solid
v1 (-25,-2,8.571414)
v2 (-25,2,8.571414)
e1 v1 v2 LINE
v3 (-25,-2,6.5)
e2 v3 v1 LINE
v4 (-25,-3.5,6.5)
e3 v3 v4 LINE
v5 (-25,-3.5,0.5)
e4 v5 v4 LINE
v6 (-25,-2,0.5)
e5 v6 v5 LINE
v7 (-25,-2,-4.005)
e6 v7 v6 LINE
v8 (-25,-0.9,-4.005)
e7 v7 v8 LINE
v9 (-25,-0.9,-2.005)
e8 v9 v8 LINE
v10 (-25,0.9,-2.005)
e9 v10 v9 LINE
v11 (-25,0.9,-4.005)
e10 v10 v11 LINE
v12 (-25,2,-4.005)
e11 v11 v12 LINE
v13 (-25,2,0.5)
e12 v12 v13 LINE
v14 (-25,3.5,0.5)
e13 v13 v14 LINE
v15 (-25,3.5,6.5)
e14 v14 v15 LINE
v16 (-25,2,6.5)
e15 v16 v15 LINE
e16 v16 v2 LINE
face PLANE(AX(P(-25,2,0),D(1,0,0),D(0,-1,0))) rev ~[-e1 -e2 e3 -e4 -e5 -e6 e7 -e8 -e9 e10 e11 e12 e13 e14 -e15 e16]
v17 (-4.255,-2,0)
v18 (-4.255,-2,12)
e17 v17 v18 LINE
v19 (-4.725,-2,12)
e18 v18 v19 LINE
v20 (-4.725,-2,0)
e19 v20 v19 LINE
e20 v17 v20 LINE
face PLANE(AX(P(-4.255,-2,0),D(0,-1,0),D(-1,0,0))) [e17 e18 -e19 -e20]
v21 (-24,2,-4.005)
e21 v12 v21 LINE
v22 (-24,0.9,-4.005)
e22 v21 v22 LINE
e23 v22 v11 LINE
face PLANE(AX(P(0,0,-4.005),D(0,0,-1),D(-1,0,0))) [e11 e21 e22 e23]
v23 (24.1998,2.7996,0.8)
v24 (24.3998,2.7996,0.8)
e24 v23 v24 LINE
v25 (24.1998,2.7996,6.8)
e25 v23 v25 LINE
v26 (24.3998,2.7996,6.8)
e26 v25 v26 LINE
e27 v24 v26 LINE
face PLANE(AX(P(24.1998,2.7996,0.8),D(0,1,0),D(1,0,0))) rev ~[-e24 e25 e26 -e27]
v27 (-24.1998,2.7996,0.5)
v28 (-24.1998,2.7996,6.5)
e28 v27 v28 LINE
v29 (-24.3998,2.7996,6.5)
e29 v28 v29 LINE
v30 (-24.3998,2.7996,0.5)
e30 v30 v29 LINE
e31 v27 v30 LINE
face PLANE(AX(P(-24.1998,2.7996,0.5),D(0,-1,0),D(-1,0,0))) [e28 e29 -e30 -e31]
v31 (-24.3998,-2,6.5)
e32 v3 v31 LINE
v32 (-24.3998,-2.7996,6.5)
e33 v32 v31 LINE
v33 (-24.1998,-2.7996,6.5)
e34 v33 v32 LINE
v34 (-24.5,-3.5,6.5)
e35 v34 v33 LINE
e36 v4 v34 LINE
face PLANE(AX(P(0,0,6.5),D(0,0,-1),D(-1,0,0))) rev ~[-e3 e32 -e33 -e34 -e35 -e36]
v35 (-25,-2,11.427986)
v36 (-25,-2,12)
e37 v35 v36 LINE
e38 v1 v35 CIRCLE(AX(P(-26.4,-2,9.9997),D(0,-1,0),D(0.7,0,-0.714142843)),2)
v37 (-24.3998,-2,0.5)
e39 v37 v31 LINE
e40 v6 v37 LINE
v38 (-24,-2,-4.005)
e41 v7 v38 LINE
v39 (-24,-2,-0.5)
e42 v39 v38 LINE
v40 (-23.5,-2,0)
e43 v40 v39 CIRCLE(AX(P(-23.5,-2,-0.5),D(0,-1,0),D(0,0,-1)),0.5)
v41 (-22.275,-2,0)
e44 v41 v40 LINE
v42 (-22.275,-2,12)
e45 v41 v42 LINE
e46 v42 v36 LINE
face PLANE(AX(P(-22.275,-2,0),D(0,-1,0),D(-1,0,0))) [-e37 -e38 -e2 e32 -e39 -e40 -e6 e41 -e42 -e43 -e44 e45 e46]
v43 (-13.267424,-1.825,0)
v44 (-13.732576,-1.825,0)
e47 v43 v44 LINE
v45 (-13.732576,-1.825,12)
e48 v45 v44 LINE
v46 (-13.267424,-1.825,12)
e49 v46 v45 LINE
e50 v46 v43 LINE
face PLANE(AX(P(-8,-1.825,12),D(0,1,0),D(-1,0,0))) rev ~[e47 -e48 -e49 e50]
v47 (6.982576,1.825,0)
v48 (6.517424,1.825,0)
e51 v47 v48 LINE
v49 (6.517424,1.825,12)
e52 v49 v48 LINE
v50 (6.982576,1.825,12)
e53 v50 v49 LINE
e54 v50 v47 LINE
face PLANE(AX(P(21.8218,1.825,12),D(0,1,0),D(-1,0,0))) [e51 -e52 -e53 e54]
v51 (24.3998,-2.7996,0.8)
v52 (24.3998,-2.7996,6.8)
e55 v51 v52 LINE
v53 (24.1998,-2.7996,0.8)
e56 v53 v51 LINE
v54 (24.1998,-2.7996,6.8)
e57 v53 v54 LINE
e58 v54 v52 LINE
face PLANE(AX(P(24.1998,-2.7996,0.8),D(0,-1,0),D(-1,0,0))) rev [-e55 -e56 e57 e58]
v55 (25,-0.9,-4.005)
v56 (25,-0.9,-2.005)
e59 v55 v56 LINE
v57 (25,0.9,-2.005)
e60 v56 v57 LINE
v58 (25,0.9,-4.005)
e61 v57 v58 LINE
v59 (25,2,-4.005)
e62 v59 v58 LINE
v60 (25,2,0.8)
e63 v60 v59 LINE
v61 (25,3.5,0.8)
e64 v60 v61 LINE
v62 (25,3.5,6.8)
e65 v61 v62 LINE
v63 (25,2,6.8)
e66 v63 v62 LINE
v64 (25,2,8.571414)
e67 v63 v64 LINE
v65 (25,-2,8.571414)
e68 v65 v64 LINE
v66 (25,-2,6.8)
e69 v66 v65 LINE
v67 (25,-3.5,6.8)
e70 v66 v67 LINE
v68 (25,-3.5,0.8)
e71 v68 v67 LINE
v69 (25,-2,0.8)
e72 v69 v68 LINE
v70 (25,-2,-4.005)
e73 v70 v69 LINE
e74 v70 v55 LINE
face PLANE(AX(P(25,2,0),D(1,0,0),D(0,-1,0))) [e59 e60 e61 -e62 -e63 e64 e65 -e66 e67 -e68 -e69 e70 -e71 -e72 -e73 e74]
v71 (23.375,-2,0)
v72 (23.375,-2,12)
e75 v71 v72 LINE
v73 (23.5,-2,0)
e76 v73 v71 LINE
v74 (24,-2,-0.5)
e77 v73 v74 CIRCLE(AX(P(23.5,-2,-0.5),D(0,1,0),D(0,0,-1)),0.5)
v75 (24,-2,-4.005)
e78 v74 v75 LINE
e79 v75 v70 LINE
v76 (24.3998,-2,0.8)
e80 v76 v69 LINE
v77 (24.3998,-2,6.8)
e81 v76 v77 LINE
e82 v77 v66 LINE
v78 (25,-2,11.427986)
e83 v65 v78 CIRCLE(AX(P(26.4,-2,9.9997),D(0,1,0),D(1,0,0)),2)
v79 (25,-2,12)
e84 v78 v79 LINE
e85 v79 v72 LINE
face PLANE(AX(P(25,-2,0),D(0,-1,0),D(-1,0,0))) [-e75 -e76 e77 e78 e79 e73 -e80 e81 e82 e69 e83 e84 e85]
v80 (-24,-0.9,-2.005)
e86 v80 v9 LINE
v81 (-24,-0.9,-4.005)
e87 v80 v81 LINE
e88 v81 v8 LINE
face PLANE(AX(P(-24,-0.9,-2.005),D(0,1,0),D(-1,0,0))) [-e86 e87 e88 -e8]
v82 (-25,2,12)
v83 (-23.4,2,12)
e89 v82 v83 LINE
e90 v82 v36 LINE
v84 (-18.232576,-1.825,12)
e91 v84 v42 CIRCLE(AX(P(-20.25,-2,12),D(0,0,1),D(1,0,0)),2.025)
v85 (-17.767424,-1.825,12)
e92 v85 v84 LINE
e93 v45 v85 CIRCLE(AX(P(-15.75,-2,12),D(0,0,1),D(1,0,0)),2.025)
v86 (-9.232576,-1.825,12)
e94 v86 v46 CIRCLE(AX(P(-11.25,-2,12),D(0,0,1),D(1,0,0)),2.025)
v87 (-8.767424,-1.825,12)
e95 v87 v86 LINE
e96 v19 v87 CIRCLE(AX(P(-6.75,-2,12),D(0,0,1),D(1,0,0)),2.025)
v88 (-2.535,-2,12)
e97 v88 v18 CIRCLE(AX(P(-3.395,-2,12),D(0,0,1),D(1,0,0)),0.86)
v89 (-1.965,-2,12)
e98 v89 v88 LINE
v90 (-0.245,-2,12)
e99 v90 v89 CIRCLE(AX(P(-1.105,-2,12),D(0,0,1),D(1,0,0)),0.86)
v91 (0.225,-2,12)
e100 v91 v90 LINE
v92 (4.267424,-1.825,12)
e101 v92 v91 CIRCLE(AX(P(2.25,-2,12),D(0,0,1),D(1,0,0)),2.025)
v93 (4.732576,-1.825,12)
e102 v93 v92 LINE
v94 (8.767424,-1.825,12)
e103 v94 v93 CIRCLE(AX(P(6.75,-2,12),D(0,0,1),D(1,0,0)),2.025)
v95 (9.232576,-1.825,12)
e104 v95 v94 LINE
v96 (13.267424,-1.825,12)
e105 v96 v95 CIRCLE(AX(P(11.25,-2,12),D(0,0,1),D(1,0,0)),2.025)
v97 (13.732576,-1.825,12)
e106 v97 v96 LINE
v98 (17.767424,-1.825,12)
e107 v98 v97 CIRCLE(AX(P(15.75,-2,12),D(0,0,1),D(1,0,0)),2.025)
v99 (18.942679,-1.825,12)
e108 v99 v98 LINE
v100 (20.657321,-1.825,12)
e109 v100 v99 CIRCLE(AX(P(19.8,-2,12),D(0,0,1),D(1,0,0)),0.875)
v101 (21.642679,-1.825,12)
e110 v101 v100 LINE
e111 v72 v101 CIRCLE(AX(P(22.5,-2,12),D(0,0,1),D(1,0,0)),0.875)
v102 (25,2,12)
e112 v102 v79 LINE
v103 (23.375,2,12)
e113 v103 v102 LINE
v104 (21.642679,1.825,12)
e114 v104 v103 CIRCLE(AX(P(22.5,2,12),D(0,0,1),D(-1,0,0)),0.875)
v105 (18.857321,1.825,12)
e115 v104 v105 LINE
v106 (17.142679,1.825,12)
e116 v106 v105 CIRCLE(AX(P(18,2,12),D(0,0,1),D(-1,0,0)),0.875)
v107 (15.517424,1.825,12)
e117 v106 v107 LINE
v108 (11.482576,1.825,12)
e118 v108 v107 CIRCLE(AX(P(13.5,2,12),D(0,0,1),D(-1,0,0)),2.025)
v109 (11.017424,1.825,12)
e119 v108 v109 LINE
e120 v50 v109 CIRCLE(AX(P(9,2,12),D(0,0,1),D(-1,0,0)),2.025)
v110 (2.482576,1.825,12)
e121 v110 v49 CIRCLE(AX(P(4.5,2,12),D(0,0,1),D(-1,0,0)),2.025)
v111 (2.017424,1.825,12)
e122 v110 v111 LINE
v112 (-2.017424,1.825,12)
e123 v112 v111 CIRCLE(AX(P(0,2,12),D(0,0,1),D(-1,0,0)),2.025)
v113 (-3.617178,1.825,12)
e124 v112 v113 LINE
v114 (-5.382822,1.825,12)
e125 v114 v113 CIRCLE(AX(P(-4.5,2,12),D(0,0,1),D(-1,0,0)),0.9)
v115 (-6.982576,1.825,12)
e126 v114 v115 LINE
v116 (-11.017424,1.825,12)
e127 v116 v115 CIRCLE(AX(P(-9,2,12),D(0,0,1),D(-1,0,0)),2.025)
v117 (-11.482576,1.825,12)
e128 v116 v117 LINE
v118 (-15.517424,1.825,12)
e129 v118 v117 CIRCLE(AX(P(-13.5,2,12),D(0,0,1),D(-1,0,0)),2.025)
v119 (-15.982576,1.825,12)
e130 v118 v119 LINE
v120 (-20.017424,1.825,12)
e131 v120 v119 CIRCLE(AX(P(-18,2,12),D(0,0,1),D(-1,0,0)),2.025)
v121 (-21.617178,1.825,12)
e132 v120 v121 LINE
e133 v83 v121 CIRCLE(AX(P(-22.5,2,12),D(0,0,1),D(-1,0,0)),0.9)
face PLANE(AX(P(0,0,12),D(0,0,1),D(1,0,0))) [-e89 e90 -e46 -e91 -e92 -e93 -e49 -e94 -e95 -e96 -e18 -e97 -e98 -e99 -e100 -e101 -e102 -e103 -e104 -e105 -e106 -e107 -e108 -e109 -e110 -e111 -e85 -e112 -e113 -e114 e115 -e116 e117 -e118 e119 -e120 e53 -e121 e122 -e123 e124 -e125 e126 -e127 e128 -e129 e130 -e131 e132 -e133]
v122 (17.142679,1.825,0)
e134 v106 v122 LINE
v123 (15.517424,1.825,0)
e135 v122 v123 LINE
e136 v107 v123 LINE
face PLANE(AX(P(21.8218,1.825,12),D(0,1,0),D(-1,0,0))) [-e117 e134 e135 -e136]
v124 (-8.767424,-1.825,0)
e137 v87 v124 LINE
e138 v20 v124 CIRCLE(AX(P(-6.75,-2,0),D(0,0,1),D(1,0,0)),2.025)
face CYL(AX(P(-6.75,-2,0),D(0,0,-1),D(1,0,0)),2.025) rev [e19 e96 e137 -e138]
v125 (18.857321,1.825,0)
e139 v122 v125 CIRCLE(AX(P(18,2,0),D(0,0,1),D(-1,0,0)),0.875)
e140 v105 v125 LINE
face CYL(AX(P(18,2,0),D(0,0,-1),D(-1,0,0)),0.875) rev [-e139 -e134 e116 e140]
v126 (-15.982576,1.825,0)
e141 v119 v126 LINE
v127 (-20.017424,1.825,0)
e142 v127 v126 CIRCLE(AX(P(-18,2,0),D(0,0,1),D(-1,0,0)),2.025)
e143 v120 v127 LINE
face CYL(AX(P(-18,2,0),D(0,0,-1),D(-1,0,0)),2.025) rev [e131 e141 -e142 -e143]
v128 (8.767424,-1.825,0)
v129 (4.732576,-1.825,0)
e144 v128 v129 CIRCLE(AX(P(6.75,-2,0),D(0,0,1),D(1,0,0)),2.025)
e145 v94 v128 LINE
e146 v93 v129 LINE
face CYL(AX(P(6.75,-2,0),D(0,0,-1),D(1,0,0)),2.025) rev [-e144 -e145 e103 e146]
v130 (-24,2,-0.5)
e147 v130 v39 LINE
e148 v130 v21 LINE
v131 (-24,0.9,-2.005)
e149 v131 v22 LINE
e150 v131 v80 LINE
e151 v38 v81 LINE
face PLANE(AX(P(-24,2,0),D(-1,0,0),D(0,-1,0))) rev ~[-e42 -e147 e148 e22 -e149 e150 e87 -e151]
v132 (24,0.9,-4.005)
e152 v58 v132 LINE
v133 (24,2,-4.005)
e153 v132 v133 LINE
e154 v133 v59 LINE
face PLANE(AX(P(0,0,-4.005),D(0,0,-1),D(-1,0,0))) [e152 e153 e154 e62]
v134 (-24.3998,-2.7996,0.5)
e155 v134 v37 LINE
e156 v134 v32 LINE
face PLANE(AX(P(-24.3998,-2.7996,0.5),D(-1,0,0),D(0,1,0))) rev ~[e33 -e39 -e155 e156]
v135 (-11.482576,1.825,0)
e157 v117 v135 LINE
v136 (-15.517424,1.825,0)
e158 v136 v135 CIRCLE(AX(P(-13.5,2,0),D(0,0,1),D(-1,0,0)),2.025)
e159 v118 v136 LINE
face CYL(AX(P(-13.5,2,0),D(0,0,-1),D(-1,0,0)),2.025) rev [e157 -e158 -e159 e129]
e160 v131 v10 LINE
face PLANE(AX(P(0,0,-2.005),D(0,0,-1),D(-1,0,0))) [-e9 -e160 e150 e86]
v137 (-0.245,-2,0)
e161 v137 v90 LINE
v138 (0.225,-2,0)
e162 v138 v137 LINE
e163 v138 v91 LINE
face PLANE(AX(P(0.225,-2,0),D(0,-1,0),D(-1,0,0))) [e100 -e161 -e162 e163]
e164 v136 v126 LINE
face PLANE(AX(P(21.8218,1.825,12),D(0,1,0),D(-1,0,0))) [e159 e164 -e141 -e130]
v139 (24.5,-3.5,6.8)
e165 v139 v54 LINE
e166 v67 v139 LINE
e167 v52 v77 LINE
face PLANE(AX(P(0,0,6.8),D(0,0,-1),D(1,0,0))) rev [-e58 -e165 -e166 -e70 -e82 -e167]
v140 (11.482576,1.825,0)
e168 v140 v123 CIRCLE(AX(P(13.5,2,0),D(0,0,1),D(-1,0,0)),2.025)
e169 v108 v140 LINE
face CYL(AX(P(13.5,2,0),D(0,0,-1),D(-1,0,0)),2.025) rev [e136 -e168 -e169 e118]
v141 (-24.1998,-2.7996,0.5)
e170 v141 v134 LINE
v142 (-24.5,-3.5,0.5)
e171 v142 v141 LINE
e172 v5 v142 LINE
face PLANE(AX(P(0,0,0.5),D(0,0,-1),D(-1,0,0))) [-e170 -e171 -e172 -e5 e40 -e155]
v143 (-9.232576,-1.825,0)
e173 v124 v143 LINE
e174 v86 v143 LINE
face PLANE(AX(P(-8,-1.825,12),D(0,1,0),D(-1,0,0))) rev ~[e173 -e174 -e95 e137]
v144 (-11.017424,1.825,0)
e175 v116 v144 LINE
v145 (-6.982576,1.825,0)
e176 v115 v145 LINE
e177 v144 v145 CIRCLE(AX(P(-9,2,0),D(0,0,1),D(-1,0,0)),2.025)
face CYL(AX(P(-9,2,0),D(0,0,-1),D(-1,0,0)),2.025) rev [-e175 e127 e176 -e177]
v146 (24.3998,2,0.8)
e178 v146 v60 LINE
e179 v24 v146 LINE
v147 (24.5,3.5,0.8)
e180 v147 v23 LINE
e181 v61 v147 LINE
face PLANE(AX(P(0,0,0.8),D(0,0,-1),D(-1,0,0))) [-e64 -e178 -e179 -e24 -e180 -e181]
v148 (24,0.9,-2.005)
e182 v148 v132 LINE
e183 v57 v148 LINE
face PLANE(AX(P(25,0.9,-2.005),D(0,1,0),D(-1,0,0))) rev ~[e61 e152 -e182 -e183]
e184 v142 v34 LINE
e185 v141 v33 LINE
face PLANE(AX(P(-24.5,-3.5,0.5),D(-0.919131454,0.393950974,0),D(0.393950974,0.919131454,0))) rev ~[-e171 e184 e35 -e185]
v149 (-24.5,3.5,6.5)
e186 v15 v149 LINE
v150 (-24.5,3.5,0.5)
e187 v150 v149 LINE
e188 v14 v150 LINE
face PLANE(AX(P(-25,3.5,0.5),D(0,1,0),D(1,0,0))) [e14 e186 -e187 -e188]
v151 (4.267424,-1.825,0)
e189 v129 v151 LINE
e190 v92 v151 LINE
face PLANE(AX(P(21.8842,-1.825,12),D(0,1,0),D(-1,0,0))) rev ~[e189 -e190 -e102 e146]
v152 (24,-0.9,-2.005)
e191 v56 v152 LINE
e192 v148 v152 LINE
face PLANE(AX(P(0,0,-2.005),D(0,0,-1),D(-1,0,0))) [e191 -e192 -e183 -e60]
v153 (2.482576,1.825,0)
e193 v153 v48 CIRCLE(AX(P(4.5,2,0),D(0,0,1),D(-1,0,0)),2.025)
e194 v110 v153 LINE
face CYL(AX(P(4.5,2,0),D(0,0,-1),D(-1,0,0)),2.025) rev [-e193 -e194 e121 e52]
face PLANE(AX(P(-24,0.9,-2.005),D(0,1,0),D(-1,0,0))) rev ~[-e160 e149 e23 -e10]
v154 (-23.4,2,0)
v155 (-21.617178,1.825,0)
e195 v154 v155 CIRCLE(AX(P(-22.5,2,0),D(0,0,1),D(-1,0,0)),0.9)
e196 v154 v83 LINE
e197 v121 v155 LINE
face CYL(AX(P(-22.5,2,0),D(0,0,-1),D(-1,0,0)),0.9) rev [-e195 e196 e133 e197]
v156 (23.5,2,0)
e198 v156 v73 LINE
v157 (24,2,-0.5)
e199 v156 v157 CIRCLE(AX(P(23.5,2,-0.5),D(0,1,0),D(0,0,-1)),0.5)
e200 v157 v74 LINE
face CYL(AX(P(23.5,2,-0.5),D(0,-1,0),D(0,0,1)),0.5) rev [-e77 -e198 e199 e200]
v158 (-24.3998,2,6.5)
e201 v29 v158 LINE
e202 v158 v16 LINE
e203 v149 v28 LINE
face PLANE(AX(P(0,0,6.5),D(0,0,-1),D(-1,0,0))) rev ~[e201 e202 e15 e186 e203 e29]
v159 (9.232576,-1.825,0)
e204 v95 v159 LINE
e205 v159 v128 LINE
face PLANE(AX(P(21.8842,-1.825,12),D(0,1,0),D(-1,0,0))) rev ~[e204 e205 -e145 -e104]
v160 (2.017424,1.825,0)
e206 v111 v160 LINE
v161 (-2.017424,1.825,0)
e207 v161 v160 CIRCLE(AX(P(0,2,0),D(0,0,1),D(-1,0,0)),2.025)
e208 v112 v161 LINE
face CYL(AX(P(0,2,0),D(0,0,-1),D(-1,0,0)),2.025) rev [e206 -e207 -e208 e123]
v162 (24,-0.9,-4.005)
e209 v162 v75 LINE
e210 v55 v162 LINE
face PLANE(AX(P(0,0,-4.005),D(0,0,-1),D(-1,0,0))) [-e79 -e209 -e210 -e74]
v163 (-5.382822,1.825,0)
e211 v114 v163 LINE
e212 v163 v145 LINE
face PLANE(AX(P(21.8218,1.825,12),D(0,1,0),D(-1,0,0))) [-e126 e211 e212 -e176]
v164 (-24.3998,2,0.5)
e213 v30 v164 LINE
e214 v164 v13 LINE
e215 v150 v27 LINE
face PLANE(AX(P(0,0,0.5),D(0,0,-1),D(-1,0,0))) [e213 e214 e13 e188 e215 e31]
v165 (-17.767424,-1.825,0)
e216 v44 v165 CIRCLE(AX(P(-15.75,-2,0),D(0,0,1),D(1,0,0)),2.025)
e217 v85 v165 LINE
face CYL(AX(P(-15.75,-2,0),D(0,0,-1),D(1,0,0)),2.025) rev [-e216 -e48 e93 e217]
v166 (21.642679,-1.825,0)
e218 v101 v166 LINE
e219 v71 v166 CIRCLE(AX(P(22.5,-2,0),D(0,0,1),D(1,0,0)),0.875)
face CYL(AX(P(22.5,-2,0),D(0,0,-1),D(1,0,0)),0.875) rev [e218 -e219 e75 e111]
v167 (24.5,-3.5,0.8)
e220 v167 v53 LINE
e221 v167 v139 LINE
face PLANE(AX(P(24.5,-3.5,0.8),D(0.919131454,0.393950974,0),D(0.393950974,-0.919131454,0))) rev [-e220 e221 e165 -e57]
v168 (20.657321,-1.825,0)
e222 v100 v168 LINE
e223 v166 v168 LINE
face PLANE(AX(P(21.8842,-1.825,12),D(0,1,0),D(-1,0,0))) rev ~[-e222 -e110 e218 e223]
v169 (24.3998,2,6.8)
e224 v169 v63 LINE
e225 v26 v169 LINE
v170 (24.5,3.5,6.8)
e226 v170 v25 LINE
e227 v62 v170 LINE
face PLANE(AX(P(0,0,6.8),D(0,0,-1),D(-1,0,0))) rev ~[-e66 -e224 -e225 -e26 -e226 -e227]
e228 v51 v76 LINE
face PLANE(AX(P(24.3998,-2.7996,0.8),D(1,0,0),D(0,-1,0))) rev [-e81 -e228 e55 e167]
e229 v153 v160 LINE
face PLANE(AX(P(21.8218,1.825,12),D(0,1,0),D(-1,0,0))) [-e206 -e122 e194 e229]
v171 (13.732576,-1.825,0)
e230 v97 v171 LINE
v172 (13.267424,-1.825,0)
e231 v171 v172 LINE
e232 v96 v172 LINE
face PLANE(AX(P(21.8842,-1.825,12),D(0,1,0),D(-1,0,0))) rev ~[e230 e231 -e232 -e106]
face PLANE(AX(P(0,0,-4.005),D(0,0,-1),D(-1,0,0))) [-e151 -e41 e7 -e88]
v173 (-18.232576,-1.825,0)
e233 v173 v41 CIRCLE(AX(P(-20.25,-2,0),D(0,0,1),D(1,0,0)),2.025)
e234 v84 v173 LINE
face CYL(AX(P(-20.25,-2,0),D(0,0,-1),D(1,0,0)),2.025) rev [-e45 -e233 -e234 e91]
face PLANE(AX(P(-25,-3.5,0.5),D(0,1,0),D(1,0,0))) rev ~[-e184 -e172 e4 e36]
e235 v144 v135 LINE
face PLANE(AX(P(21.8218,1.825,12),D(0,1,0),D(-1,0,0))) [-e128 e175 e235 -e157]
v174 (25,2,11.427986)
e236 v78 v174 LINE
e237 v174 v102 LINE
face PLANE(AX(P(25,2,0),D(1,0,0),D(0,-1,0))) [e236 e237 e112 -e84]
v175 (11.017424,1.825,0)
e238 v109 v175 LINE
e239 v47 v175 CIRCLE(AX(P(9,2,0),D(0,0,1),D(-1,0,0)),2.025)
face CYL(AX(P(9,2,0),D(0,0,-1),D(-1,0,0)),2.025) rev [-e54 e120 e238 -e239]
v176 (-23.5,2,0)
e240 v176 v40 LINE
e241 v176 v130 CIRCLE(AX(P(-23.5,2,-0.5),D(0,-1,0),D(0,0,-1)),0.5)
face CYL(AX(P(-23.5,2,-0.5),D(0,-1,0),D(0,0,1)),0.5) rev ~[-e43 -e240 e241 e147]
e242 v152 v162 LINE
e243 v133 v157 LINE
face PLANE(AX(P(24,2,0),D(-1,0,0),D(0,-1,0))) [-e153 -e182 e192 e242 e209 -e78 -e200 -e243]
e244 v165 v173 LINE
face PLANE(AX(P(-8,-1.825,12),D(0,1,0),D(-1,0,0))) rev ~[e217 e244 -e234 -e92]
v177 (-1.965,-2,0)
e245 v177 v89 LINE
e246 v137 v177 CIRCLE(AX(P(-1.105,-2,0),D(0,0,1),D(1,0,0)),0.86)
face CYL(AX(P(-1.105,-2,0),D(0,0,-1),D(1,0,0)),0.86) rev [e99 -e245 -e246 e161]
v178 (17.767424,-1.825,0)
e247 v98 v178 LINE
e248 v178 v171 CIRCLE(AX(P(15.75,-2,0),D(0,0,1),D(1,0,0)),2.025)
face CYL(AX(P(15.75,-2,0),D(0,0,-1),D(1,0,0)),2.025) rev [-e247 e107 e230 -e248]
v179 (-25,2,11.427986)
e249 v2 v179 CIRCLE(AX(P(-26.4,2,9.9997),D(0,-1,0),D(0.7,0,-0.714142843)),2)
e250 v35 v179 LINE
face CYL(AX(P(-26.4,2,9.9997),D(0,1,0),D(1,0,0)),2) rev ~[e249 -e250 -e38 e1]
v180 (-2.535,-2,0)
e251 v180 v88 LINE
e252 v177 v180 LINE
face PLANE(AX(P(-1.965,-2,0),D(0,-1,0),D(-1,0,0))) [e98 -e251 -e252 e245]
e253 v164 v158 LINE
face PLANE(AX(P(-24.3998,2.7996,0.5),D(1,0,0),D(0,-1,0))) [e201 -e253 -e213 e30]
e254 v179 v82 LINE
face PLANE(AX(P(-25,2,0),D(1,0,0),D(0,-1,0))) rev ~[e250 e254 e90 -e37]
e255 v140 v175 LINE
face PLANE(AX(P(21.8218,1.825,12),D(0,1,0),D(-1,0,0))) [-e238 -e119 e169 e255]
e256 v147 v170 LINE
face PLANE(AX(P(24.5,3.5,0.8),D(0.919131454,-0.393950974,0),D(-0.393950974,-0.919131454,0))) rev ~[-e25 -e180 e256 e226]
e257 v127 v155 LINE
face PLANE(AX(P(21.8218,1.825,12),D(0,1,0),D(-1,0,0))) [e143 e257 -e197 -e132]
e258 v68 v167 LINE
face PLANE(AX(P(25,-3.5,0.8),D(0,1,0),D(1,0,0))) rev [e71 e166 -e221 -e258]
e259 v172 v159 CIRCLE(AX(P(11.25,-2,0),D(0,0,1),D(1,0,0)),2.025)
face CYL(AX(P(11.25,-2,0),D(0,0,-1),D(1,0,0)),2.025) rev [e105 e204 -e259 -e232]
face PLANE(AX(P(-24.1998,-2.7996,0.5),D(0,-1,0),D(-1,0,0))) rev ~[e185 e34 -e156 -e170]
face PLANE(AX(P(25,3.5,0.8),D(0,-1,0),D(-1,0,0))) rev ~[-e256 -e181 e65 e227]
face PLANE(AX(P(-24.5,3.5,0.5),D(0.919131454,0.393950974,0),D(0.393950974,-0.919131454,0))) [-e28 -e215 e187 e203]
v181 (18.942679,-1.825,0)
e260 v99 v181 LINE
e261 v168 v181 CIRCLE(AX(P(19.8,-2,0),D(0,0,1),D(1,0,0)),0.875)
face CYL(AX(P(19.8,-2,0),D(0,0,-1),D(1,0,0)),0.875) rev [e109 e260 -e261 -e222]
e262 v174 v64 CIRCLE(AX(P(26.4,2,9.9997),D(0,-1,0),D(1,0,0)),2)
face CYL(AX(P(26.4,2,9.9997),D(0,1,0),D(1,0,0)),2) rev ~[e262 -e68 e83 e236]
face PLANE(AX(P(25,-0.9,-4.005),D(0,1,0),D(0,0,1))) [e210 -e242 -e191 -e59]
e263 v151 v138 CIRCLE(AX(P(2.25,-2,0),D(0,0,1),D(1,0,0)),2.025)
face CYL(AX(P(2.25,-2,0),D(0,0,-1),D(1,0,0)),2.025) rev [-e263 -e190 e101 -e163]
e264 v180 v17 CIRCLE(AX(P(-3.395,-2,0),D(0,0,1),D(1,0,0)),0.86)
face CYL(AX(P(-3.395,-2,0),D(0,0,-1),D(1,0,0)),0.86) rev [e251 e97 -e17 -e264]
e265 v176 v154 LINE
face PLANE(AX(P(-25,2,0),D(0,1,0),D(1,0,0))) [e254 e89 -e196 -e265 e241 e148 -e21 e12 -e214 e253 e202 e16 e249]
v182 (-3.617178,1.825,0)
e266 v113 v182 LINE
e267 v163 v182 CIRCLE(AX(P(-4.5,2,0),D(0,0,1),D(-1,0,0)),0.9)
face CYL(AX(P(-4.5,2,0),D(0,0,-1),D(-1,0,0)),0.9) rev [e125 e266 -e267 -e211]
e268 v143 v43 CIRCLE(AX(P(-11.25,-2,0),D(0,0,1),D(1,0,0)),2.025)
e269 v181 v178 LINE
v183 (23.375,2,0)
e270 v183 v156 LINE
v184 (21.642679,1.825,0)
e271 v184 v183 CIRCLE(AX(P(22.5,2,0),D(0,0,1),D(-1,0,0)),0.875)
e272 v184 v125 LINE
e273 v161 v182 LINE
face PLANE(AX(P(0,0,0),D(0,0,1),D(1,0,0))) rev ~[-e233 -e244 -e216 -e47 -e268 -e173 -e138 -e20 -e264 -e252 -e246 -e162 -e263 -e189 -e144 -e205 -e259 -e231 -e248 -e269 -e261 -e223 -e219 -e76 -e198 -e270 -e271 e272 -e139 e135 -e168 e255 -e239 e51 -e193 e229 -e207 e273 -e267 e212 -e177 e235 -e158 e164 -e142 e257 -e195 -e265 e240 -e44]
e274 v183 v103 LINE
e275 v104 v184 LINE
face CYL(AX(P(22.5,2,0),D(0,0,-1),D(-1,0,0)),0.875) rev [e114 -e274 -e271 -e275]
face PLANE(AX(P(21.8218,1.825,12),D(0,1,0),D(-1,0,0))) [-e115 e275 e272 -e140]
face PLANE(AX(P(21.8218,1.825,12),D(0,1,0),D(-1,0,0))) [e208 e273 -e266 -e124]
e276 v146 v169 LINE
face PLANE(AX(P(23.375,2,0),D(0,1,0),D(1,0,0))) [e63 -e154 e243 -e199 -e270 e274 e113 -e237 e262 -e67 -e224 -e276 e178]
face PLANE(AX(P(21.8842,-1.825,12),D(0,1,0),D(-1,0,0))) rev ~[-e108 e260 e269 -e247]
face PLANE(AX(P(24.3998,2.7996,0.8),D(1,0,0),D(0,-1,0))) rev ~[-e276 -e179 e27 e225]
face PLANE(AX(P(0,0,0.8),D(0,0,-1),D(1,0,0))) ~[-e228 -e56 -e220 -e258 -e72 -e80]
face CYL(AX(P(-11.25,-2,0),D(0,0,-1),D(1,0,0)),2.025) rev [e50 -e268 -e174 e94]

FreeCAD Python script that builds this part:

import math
import FreeCAD as App
import Part
import Sketcher

V = App.Vector
Q = App.Units.Quantity


def edges_at(feature, points):
    """Names of the edges that pass closest to the given points."""
    edges = feature.Shape.Edges
    near = lambda p: min(range(len(edges)), key=lambda i: edges[i].distToShape(Part.Vertex(*p))[0])
    return sorted({f"Edge{near(p) + 1}" for p in points})


def add_polygon(sketch, points):
    """Adds a closed chain of lines whose ends are joined by coincident constraints."""
    first, n = sketch.GeometryCount, len(points)
    for a, b in zip(points, points[1:] + points[:1]):
        sketch.addGeometry(Part.LineSegment(App.Vector(*a, 0), App.Vector(*b, 0)), False)
    for i in range(n):
        sketch.addConstraint(Sketcher.Constraint("Coincident", first + i, 2, first + (i + 1) % n, 1))

doc = App.newDocument("Part")
body = doc.addObject("PartDesign::Body", "Body")

sketch1 = body.newObject("Sketcher::SketchObject", "Sketch")
sketch1.AttachmentSupport = (doc.getObject("XY_Plane"), [""])
sketch1.MapMode = "FlatFace"
sketch1.addGeometry([
    Part.LineSegment(V(-23.4, 2, 0), V(-25, 2, 0)),
    Part.LineSegment(V(-25, 2, 0), V(-25, -2, 0)),
    Part.LineSegment(V(-25, -2, 0), V(-22.27, -2, 0)),
    Part.ArcOfCircle(Part.Circle(V(-20.25, -2, 0), V(0, 0, 1), 2.02), math.radians(0), math.radians(180)),
    Part.LineSegment(V(-18.23, -2, 0), V(-17.77, -2, 0)),
    Part.ArcOfCircle(Part.Circle(V(-15.75, -2, 0), V(0, 0, 1), 2.03), math.radians(0), math.radians(180)),
    Part.LineSegment(V(-13.72, -2, 0), V(-13.28, -2, 0)),
    Part.ArcOfCircle(Part.Circle(V(-11.25, -2, 0), V(0, 0, 1), 2.03), math.radians(0), math.radians(180)),
    Part.LineSegment(V(-9.22, -2, 0), V(-8.78, -2, 0)),
    Part.ArcOfCircle(Part.Circle(V(-6.75, -2, 0), V(0, 0, 1), 2.03), math.radians(0), math.radians(180)),
    Part.LineSegment(V(-4.72, -2, 0), V(-4.25, -2, 0)),
    Part.ArcOfCircle(Part.Circle(V(-3.4, -2, 0), V(0, 0, 1), 0.86), math.radians(0), math.radians(180)),
    Part.LineSegment(V(-2.54, -2, 0), V(-1.97, -2, 0)),
    Part.ArcOfCircle(Part.Circle(V(-1.1, -2, 0), V(0, 0, 1), 0.86), math.radians(0), math.radians(180)),
    Part.LineSegment(V(-0.24, -2, 0), V(0.23, -2, 0)),
    Part.ArcOfCircle(Part.Circle(V(2.25, -2, 0), V(0, 0, 1), 2.03), math.radians(0), math.radians(180)),
    Part.LineSegment(V(4.28, -2, 0), V(4.72, -2, 0)),
    Part.ArcOfCircle(Part.Circle(V(6.75, -2, 0), V(0, 0, 1), 2.03), math.radians(0), math.radians(180)),
    Part.LineSegment(V(8.78, -2, 0), V(9.22, -2, 0)),
    Part.ArcOfCircle(Part.Circle(V(11.25, -2, 0), V(0, 0, 1), 2.03), math.radians(0), math.radians(180)),
    Part.LineSegment(V(13.28, -2, 0), V(13.72, -2, 0)),
    Part.ArcOfCircle(Part.Circle(V(15.75, -2, 0), V(0, 0, 1), 2.02), math.radians(0), math.radians(180)),
    Part.LineSegment(V(17.77, -2, 0), V(18.93, -2, 0)),
    Part.ArcOfCircle(Part.Circle(V(19.8, -2, 0), V(0, 0, 1), 0.88), math.radians(0), math.radians(180)),
    Part.LineSegment(V(20.68, -2, 0), V(21.62, -2, 0)),
    Part.ArcOfCircle(Part.Circle(V(22.5, -2, 0), V(0, 0, 1), 0.88), math.radians(0), math.radians(180)),
    Part.LineSegment(V(23.38, -2, 0), V(25, -2, 0)),
    Part.LineSegment(V(25, -2, 0), V(25, 2, 0)),
    Part.LineSegment(V(25, 2, 0), V(23.38, 2, 0)),
    Part.ArcOfCircle(Part.Circle(V(22.5, 2, 0), V(0, 0, 1), 0.88), math.radians(180), math.radians(360)),
    Part.LineSegment(V(21.62, 2, 0), V(18.88, 2, 0)),
    Part.ArcOfCircle(Part.Circle(V(18, 2, 0), V(0, 0, 1), 0.88), math.radians(180), math.radians(360)),
    Part.LineSegment(V(17.12, 2, 0), V(15.53, 2, 0)),
    Part.ArcOfCircle(Part.Circle(V(13.5, 2, 0), V(0, 0, 1), 2.03), math.radians(180), math.radians(360)),
    Part.LineSegment(V(11.47, 2, 0), V(11.03, 2, 0)),
    Part.ArcOfCircle(Part.Circle(V(9, 2, 0), V(0, 0, 1), 2.03), math.radians(180), math.radians(360)),
    Part.LineSegment(V(6.97, 2, 0), V(6.53, 2, 0)),
    Part.ArcOfCircle(Part.Circle(V(4.5, 2, 0), V(0, 0, 1), 2.02), math.radians(180), math.radians(360)),
    Part.LineSegment(V(2.48, 2, 0), V(2.02, 2, 0)),
    Part.ArcOfCircle(Part.Circle(V(0, 2, 0), V(0, 0, 1), 2.02), math.radians(180), math.radians(360)),
    Part.LineSegment(V(-2.02, 2, 0), V(-3.6, 2, 0)),
    Part.ArcOfCircle(Part.Circle(V(-4.5, 2, 0), V(0, 0, 1), 0.9), math.radians(180), math.radians(360)),
    Part.LineSegment(V(-5.4, 2, 0), V(-6.97, 2, 0)),
    Part.ArcOfCircle(Part.Circle(V(-9, 2, 0), V(0, 0, 1), 2.03), math.radians(180), math.radians(360)),
    Part.LineSegment(V(-11.03, 2, 0), V(-11.47, 2, 0)),
    Part.ArcOfCircle(Part.Circle(V(-13.5, 2, 0), V(0, 0, 1), 2.03), math.radians(180), math.radians(360)),
    Part.LineSegment(V(-15.53, 2, 0), V(-15.97, 2, 0)),
    Part.ArcOfCircle(Part.Circle(V(-18, 2, 0), V(0, 0, 1), 2.02), math.radians(180), math.radians(360)),
    Part.LineSegment(V(-20.02, 2, 0), V(-21.6, 2, 0)),
    Part.ArcOfCircle(Part.Circle(V(-22.5, 2, 0), V(0, 0, 1), 0.9), math.radians(180), math.radians(360)),
], False)
sketch1.addConstraint([
    Sketcher.Constraint("Coincident", 0, 2, 1, 1),
    Sketcher.Constraint("Coincident", 1, 2, 2, 1),
    Sketcher.Constraint("Coincident", 2, 2, 3, 2),
    Sketcher.Constraint("Coincident", 3, 1, 4, 1),
    Sketcher.Constraint("Coincident", 4, 2, 5, 2),
    Sketcher.Constraint("Coincident", 5, 1, 6, 1),
    Sketcher.Constraint("Coincident", 6, 2, 7, 2),
    Sketcher.Constraint("Coincident", 7, 1, 8, 1),
    Sketcher.Constraint("Coincident", 8, 2, 9, 2),
    Sketcher.Constraint("Coincident", 9, 1, 10, 1),
    Sketcher.Constraint("Coincident", 10, 2, 11, 2),
    Sketcher.Constraint("Coincident", 11, 1, 12, 1),
    Sketcher.Constraint("Coincident", 12, 2, 13, 2),
    Sketcher.Constraint("Coincident", 13, 1, 14, 1),
    Sketcher.Constraint("Coincident", 14, 2, 15, 2),
    Sketcher.Constraint("Coincident", 15, 1, 16, 1),
    Sketcher.Constraint("Coincident", 16, 2, 17, 2),
    Sketcher.Constraint("Coincident", 17, 1, 18, 1),
    Sketcher.Constraint("Coincident", 18, 2, 19, 2),
    Sketcher.Constraint("Coincident", 19, 1, 20, 1),
    Sketcher.Constraint("Coincident", 20, 2, 21, 2),
    Sketcher.Constraint("Coincident", 21, 1, 22, 1),
    Sketcher.Constraint("Coincident", 22, 2, 23, 2),
    Sketcher.Constraint("Coincident", 23, 1, 24, 1),
    Sketcher.Constraint("Coincident", 24, 2, 25, 2),
    Sketcher.Constraint("Coincident", 25, 1, 26, 1),
    Sketcher.Constraint("Coincident", 26, 2, 27, 1),
    Sketcher.Constraint("Coincident", 27, 2, 28, 1),
    Sketcher.Constraint("Coincident", 28, 2, 29, 2),
    Sketcher.Constraint("Coincident", 29, 1, 30, 1),
    Sketcher.Constraint("Coincident", 30, 2, 31, 2),
    Sketcher.Constraint("Coincident", 31, 1, 32, 1),
    Sketcher.Constraint("Coincident", 32, 2, 33, 2),
    Sketcher.Constraint("Coincident", 33, 1, 34, 1),
    Sketcher.Constraint("Coincident", 34, 2, 35, 2),
    Sketcher.Constraint("Coincident", 35, 1, 36, 1),
    Sketcher.Constraint("Coincident", 36, 2, 37, 2),
    Sketcher.Constraint("Coincident", 37, 1, 38, 1),
    Sketcher.Constraint("Coincident", 38, 2, 39, 2),
    Sketcher.Constraint("Coincident", 39, 1, 40, 1),
    Sketcher.Constraint("Coincident", 40, 2, 41, 2),
    Sketcher.Constraint("Coincident", 41, 1, 42, 1),
    Sketcher.Constraint("Coincident", 42, 2, 43, 2),
    Sketcher.Constraint("Coincident", 43, 1, 44, 1),
    Sketcher.Constraint("Coincident", 44, 2, 45, 2),
    Sketcher.Constraint("Coincident", 45, 1, 46, 1),
    Sketcher.Constraint("Coincident", 46, 2, 47, 2),
    Sketcher.Constraint("Coincident", 47, 1, 48, 1),
    Sketcher.Constraint("Coincident", 48, 2, 49, 2),
    Sketcher.Constraint("Coincident", 49, 1, 0, 1),
    Sketcher.Constraint("Horizontal", 0),
    Sketcher.Constraint("Vertical", 1),
    Sketcher.Constraint("Horizontal", 2),
    Sketcher.Constraint("Horizontal", 4),
    Sketcher.Constraint("Horizontal", 6),
    Sketcher.Constraint("Horizontal", 8),
    Sketcher.Constraint("Horizontal", 10),
    Sketcher.Constraint("Horizontal", 12),
    Sketcher.Constraint("Horizontal", 14),
    Sketcher.Constraint("Horizontal", 16),
    Sketcher.Constraint("Horizontal", 18),
    Sketcher.Constraint("Horizontal", 20),
    Sketcher.Constraint("Horizontal", 22),
    Sketcher.Constraint("Horizontal", 24),
    Sketcher.Constraint("Horizontal", 26),
    Sketcher.Constraint("Vertical", 27),
    Sketcher.Constraint("Horizontal", 28),
    Sketcher.Constraint("Horizontal", 30),
    Sketcher.Constraint("Horizontal", 32),
    Sketcher.Constraint("Horizontal", 34),
    Sketcher.Constraint("Horizontal", 36),
    Sketcher.Constraint("Horizontal", 38),
    Sketcher.Constraint("Horizontal", 40),
    Sketcher.Constraint("Horizontal", 42),
    Sketcher.Constraint("Horizontal", 44),
    Sketcher.Constraint("Horizontal", 46),
    Sketcher.Constraint("Horizontal", 48),
    Sketcher.Constraint("Equal", 3, 5),
    Sketcher.Constraint("Equal", 5, 7),
    Sketcher.Constraint("Equal", 7, 9),
    Sketcher.Constraint("Equal", 11, 13),
    Sketcher.Constraint("Equal", 9, 15),
    Sketcher.Constraint("Equal", 15, 17),
    Sketcher.Constraint("Equal", 17, 19),
    Sketcher.Constraint("Equal", 19, 21),
    Sketcher.Constraint("Equal", 23, 25),
    Sketcher.Constraint("Equal", 25, 29),
    Sketcher.Constraint("Equal", 29, 31),
    Sketcher.Constraint("Equal", 21, 33),
    Sketcher.Constraint("Equal", 33, 35),
    Sketcher.Constraint("Equal", 35, 37),
    Sketcher.Constraint("Equal", 37, 39),
    Sketcher.Constraint("Equal", 39, 43),
    Sketcher.Constraint("Equal", 43, 45),
    Sketcher.Constraint("Equal", 45, 47),
    Sketcher.Constraint("Equal", 41, 49),
    Sketcher.Constraint("Symmetric", 25, 3, 49, 3, -1, 1),
    Sketcher.Constraint("Symmetric", 0, 2, 26, 2, -1, 1),
    Sketcher.Constraint("Symmetric", 9, 3, 17, 3, -2),
    Sketcher.Constraint("Symmetric", 7, 3, 19, 3, -2),
    Sketcher.Constraint("Symmetric", 5, 3, 21, 3, -2),
    Sketcher.Constraint("Symmetric", 37, 3, 41, 3, -2),
    Sketcher.Constraint("Symmetric", 35, 3, 43, 3, -2),
    Sketcher.Constraint("Symmetric", 33, 3, 45, 3, -2),
    Sketcher.Constraint("Symmetric", 31, 3, 47, 3, -2),
    Sketcher.Constraint("Symmetric", 29, 3, 49, 3, -2),
    Sketcher.Constraint("Symmetric", 38, 2, 39, 1, -2),
    Sketcher.Constraint("Horizontal", 3, 3, 5, 3),
    Sketcher.Constraint("Horizontal", 5, 3, 7, 3),
    Sketcher.Constraint("Horizontal", 7, 3, 9, 3),
    Sketcher.Constraint("Horizontal", 9, 3, 11, 3),
    Sketcher.Constraint("Horizontal", 11, 3, 13, 3),
    Sketcher.Constraint("Horizontal", 13, 3, 15, 3),
    Sketcher.Constraint("Horizontal", 21, 3, 23, 3),
    Sketcher.Constraint("Horizontal", 23, 3, 25, 3),
    Sketcher.Constraint("Horizontal", 29, 3, 31, 3),
    Sketcher.Constraint("Horizontal", 31, 3, 33, 3),
    Sketcher.Constraint("Horizontal", 33, 3, 35, 3),
    Sketcher.Constraint("Horizontal", 35, 3, 37, 3),
    Sketcher.Constraint("Horizontal", 37, 3, 39, 3),
    Sketcher.Constraint("Horizontal", 49, 3, 0, 2),
    Sketcher.Constraint("Horizontal", 25, 3, 1, 2),
    Sketcher.Constraint("Horizontal", 2, 2, 3, 1),
    Sketcher.Constraint("Horizontal", 4, 2, 5, 1),
    Sketcher.Constraint("Horizontal", 6, 2, 7, 1),
    Sketcher.Constraint("Horizontal", 8, 2, 9, 1),
    Sketcher.Constraint("Horizontal", 10, 2, 11, 1),
    Sketcher.Constraint("Horizontal", 12, 2, 13, 1),
    Sketcher.Constraint("Horizontal", 14, 2, 15, 1),
    Sketcher.Constraint("Horizontal", 16, 2, 17, 1),
    Sketcher.Constraint("Horizontal", 18, 2, 19, 1),
    Sketcher.Constraint("Horizontal", 20, 2, 21, 1),
    Sketcher.Constraint("Horizontal", 22, 2, 23, 1),
    Sketcher.Constraint("Horizontal", 0, 2, 27, 2),
    Sketcher.Constraint("Horizontal", 28, 2, 29, 1),
    Sketcher.Constraint("Horizontal", 30, 2, 31, 1),
    Sketcher.Constraint("Horizontal", 32, 2, 33, 1),
    Sketcher.Constraint("Horizontal", 34, 2, 35, 1),
    Sketcher.Constraint("Horizontal", 36, 2, 37, 1),
    Sketcher.Constraint("Horizontal", 40, 2, 41, 1),
    Sketcher.Constraint("Horizontal", 42, 2, 43, 1),
    Sketcher.Constraint("Horizontal", 44, 2, 45, 1),
    Sketcher.Constraint("Horizontal", 46, 2, 47, 1),
    Sketcher.Constraint("Equal", 4, 6),
    Sketcher.Constraint("Equal", 6, 8),
    Sketcher.Constraint("Equal", 10, 14),
    Sketcher.Constraint("Equal", 8, 16),
    Sketcher.Constraint("Equal", 0, 32),
    Sketcher.Constraint("Equal", 20, 34),
    Sketcher.Constraint("Equal", 34, 36),
    Sketcher.Constraint("Equal", 36, 38),
    Sketcher.Constraint("Equal", 44, 46),
    Sketcher.Constraint("Equal", 42, 48),
    Sketcher.Constraint("Radius", 41, Q("0.9 mm")),
    Sketcher.Constraint("DistanceY", 1, 2, 1, 1, Q("4 mm")),
    Sketcher.Constraint("Radius", 11, Q("0.86 mm")),
    Sketcher.Constraint("Radius", 3, Q("2.025 mm")),
    Sketcher.Constraint("Radius", 23, Q("0.875 mm")),
    Sketcher.Constraint("DistanceX", -1, 1, 37, 3, Q("4.5 mm")),
    Sketcher.Constraint("DistanceX", 10, 1, 10, 2, Q("0.47 mm")),
    Sketcher.Constraint("DistanceX", 12, 1, 12, 2, Q("0.57 mm")),
    Sketcher.Constraint("DistanceX", 22, 1, 22, 2, Q("1.15 mm")),
])
pad1 = body.newObject("PartDesign::Pad", "Pad")
pad1.Profile = sketch1
pad1.Length = 12

sketch2 = body.newObject("Sketcher::SketchObject", "Sketch001")
sketch2.AttachmentSupport = (doc.getObject("XZ_Plane"), [""])
sketch2.MapMode = "FlatFace"
sketch2.AttachmentOffset = App.Placement(V(0, 0, -2), App.Rotation())
sketch2.addGeometry(Part.Circle(V(26.4, 10, 0), V(0, 0, 1), 2), False)
sketch2.addConstraint([
    Sketcher.Constraint("Diameter", 0, Q("4 mm")),
    Sketcher.Constraint("DistanceX", -1, 1, 0, 3, Q("26.4 mm")),
    Sketcher.Constraint("DistanceY", -1, 1, 0, 3, Q("9.9997 mm")),
])
pocket1 = body.newObject("PartDesign::Pocket", "Pocket")
pocket1.Profile = sketch2
pocket1.Length = 12.5
pocket1.Reversed = True

sketch3 = body.newObject("Sketcher::SketchObject", "Sketch002")
sketch3.AttachmentSupport = (doc.getObject("XZ_Plane"), [""])
sketch3.MapMode = "FlatFace"
sketch3.AttachmentOffset = App.Placement(V(0, 0, -2), App.Rotation())
sketch3.addGeometry(Part.Circle(V(-26.4, 10, 0), V(0, 0, 1), 2), False)
sketch3.addConstraint([
    Sketcher.Constraint("Diameter", 0, Q("4 mm")),
    Sketcher.Constraint("DistanceX", 0, 3, -1, 1, Q("26.4 mm")),
    Sketcher.Constraint("DistanceY", -1, 1, 0, 3, Q("9.9997 mm")),
])
pocket2 = body.newObject("PartDesign::Pocket", "Pocket001")
pocket2.Profile = sketch3
pocket2.Length = 12.5
pocket2.Reversed = True

sketch4 = body.newObject("Sketcher::SketchObject", "Sketch003")
sketch4.AttachmentSupport = (doc.getObject("XY_Plane"), [""])
sketch4.MapMode = "FlatFace"
sketch4.AttachmentOffset = App.Placement(V(0, 0, 12), App.Rotation())
add_polygon(sketch4, [(21.82, 2), (-22.48, 2), (-22.48, 1.82), (21.82, 1.82)])
add_polygon(sketch4, [(0.89, -2), (21.88, -2), (21.88, -1.82), (0.89, -1.82)])
add_polygon(sketch4, [(-21.5, -1.82), (-21.5, -2), (-8, -2), (-8, -1.82)])
sketch4.addConstraint([
    Sketcher.Constraint("Horizontal", 0),
    Sketcher.Constraint("Vertical", 1),
    Sketcher.Constraint("Horizontal", 2),
    Sketcher.Constraint("Vertical", 3),
    Sketcher.Constraint("Horizontal", 4),
    Sketcher.Constraint("Vertical", 5),
    Sketcher.Constraint("Horizontal", 6),
    Sketcher.Constraint("Vertical", 7),
    Sketcher.Constraint("Vertical", 8),
    Sketcher.Constraint("Horizontal", 9),
    Sketcher.Constraint("Vertical", 10),
    Sketcher.Constraint("Horizontal", 11),
    Sketcher.Constraint("Horizontal", 7, 2, 8, 2),
    Sketcher.Constraint("Horizontal", 6, 2, 10, 2),
    Sketcher.Constraint("Equal", 3, 5),
    Sketcher.Constraint("DistanceX", 0, 2, 0, 1, Q("44.3 mm")),
    Sketcher.Constraint("DistanceY", 1, 2, 1, 1, Q("0.175 mm")),
    Sketcher.Constraint("DistanceX", 9, 1, 9, 2, Q("13.5 mm")),
    Sketcher.Constraint("DistanceY", -1, 1, 0, 2, Q("2 mm")),
    Sketcher.Constraint("DistanceY", 4, 2, -1, 1, Q("2 mm")),
    Sketcher.Constraint("DistanceX", 9, 2, -1, 1, Q("8 mm")),
    Sketcher.Constraint("DistanceX", -1, 1, 6, 2, Q("0.89 mm")),
    Sketcher.Constraint("DistanceX", 4, 1, 4, 2, Q("20.9942 mm")),
    Sketcher.Constraint("DistanceX", 0, 2, -1, 1, Q("22.4782 mm")),
])
pocket3 = body.newObject("PartDesign::Pocket", "Pocket002")
pocket3.Profile = sketch4
pocket3.Length = 12.5

sketch5 = body.newObject("Sketcher::SketchObject", "Sketch004")
sketch5.AttachmentSupport = (doc.getObject("XY_Plane"), [""])
sketch5.MapMode = "FlatFace"
sketch5.AttachmentOffset = App.Placement(V(0, 0, 0.5), App.Rotation())
add_polygon(sketch5, [(-25, -3.5), (-25, -2), (-24.4, -2), (-24.4, -2.8), (-24.2, -2.8), (-24.5, -3.5)])
add_polygon(sketch5, [(-24.4, 2), (-25, 2), (-25, 3.5), (-24.5, 3.5), (-24.2, 2.8), (-24.4, 2.8)])
sketch5.addConstraint([
    Sketcher.Constraint("Vertical", 0),
    Sketcher.Constraint("Horizontal", 1),
    Sketcher.Constraint("Vertical", 2),
    Sketcher.Constraint("Horizontal", 3),
    Sketcher.Constraint("Horizontal", 5),
    Sketcher.Constraint("Horizontal", 6),
    Sketcher.Constraint("Vertical", 7),
    Sketcher.Constraint("Horizontal", 8),
    Sketcher.Constraint("Horizontal", 10),
    Sketcher.Constraint("Vertical", 11),
    Sketcher.Constraint("Symmetric", 0, 2, 6, 2, -1),
    Sketcher.Constraint("Symmetric", 4, 2, 8, 2, -1),
    Sketcher.Constraint("Symmetric", 3, 2, 9, 2, -1),
    Sketcher.Constraint("Vertical", 2, 2, 10, 2),
    Sketcher.Constraint("DistanceX", 3, 1, 3, 2, Q("0.2 mm")),
    Sketcher.Constraint("DistanceX", 5, 2, 5, 1, Q("0.5 mm")),
    Sketcher.Constraint("DistanceY", 0, 1, 0, 2, Q("1.5 mm")),
    Sketcher.Constraint("Angle", 4, Q("-113.2006 deg")),
    Sketcher.Constraint("Distance", 4, Q("0.762 mm")),
    Sketcher.Constraint("DistanceX", 0, 2, -1, 1, Q("25 mm")),
    Sketcher.Constraint("DistanceY", 0, 2, -1, 1, Q("2 mm")),
])
pad2 = body.newObject("PartDesign::Pad", "Pad001")
pad2.Profile = sketch5
pad2.Length = 6

sketch6 = body.newObject("Sketcher::SketchObject", "Sketch005")
sketch6.AttachmentSupport = (doc.getObject("XY_Plane"), [""])
sketch6.MapMode = "FlatFace"
sketch6.AttachmentOffset = App.Placement(V(0, 0, 0.8), App.Rotation())
add_polygon(sketch6, [(25, 2), (24.4, 2), (24.4, 2.8), (24.2, 2.8), (24.5, 3.5), (25, 3.5)])
sketch6.addConstraint([
    Sketcher.Constraint("Horizontal", 0),
    Sketcher.Constraint("Vertical", 1),
    Sketcher.Constraint("Horizontal", 2),
    Sketcher.Constraint("Horizontal", 4),
    Sketcher.Constraint("Vertical", 5),
    Sketcher.Constraint("DistanceX", 2, 2, 2, 1, Q("0.2 mm")),
    Sketcher.Constraint("DistanceX", 4, 1, 4, 2, Q("0.5 mm")),
    Sketcher.Constraint("DistanceY", 5, 2, 5, 1, Q("1.5 mm")),
    Sketcher.Constraint("Distance", 3, Q("0.762 mm")),
    Sketcher.Constraint("DistanceY", 1, 1, 1, 2, Q("0.7996 mm")),
    Sketcher.Constraint("DistanceY", -1, 1, 0, 2, Q("2 mm")),
    Sketcher.Constraint("DistanceX", -1, 1, 4, 2, Q("25 mm")),
])
pad3 = body.newObject("PartDesign::Pad", "Pad002")
pad3.Profile = sketch6
pad3.Length = 6
doc.recompute()

mirrored = body.newObject("PartDesign::Mirrored", "Mirrored")
mirrored.Originals = [pad3]
mirrored.MirrorPlane = (doc.getObject("XZ_Plane"), [""])
body.Tip = mirrored

sketch7 = body.newObject("Sketcher::SketchObject", "Sketch006")
sketch7.AttachmentSupport = (doc.getObject("XY_Plane"), [""])
sketch7.MapMode = "FlatFace"
add_polygon(sketch7, [(24, 2), (25, 2), (25, -2), (24, -2)])
add_polygon(sketch7, [(-25, -2), (-25, 2), (-24, 2), (-24, -2)])
sketch7.addConstraint([
    Sketcher.Constraint("Horizontal", 0),
    Sketcher.Constraint("Vertical", 1),
    Sketcher.Constraint("Horizontal", 2),
    Sketcher.Constraint("Vertical", 3),
    Sketcher.Constraint("Vertical", 4),
    Sketcher.Constraint("Horizontal", 5),
    Sketcher.Constraint("Vertical", 6),
    Sketcher.Constraint("Horizontal", 7),
    Sketcher.Constraint("Symmetric", 1, 2, 4, 2, -1, 1),
    Sketcher.Constraint("Symmetric", 3, 2, 6, 2, -1, 1),
    Sketcher.Constraint("Horizontal", 3, 2, 4, 2),
    Sketcher.Constraint("DistanceX", 0, 1, 0, 2, Q("1 mm")),
    Sketcher.Constraint("DistanceY", 1, 2, 1, 1, Q("4 mm")),
    Sketcher.Constraint("DistanceX", -1, 1, 0, 2, Q("25 mm")),
])
pad4 = body.newObject("PartDesign::Pad", "Pad003")
pad4.Profile = sketch7
pad4.Length = 2.005
pad4.Reversed = True
doc.recompute()

fillet = body.newObject("PartDesign::Fillet", "Fillet")
fillet.Base = (pad4, edges_at(pad4, [(24, 0, 0), (-24, 0, 0)]))
fillet.Radius = 0.5

sketch8 = body.newObject("Sketcher::SketchObject", "Sketch007")
sketch8.AttachmentSupport = (doc.getObject("XY_Plane"), [""])
sketch8.MapMode = "FlatFace"
sketch8.AttachmentOffset = App.Placement(V(0, 0, -2.005), App.Rotation())
add_polygon(sketch8, [(24, 2), (25, 2), (25, 0.9), (24, 0.9)])
add_polygon(sketch8, [(24, -0.8), (25, -0.8), (25, -2), (24, -2)])
add_polygon(sketch8, [(-24, -2), (-25, -2), (-25, -0.9), (-24, -0.9)])
add_polygon(sketch8, [(-24, 0.9), (-25, 0.9), (-25, 2), (-24, 2)])
sketch8.addConstraint([
    Sketcher.Constraint("Horizontal", 0),
    Sketcher.Constraint("Vertical", 1),
    Sketcher.Constraint("Horizontal", 2),
    Sketcher.Constraint("Vertical", 3),
    Sketcher.Constraint("Horizontal", 4),
    Sketcher.Constraint("Vertical", 5),
    Sketcher.Constraint("Horizontal", 6),
    Sketcher.Constraint("Vertical", 7),
    Sketcher.Constraint("Horizontal", 8),
    Sketcher.Constraint("Vertical", 9),
    Sketcher.Constraint("Horizontal", 10),
    Sketcher.Constraint("Vertical", 11),
    Sketcher.Constraint("Horizontal", 12),
    Sketcher.Constraint("Vertical", 13),
    Sketcher.Constraint("Horizontal", 14),
    Sketcher.Constraint("Vertical", 15),
    Sketcher.Constraint("Symmetric", 0, 2, 8, 2, -1, 1),
    Sketcher.Constraint("Symmetric", 2, 2, 10, 2, -1, 1),
    Sketcher.Constraint("Symmetric", 5, 2, 13, 2, -1, 1),
    Sketcher.Constraint("Symmetric", 5, 2, 8, 2, -2),
    Sketcher.Constraint("Symmetric", 2, 2, 15, 2, -2),
    Sketcher.Constraint("Vertical", 3, 2, 6, 2),
    Sketcher.Constraint("DistanceX", 0, 1, 0, 2, Q("1 mm")),
    Sketcher.Constraint("DistanceY", 1, 2, 1, 1, Q("1.1 mm")),
    Sketcher.Constraint("DistanceX", -1, 1, 0, 2, Q("25 mm")),
    Sketcher.Constraint("DistanceY", -1, 1, 0, 2, Q("2 mm")),
    Sketcher.Constraint("DistanceY", 5, 2, 5, 1, Q("1.1853 mm")),
])
pad5 = body.newObject("PartDesign::Pad", "Pad004")
pad5.Profile = sketch8
pad5.Length = 2
pad5.Reversed = True

sketch9 = body.newObject("Sketcher::SketchObject", "Sketch008")
sketch9.AttachmentSupport = (doc.getObject("YZ_Plane"), [""])
sketch9.MapMode = "FlatFace"
sketch9.AttachmentOffset = App.Placement(V(0, 0, 25), App.Rotation())
add_polygon(sketch9, [(-0.9, -2), (-0.9, -4), (-0.8, -4), (-0.8, -2)])
sketch9.addConstraint([
    Sketcher.Constraint("Vertical", 0),
    Sketcher.Constraint("Horizontal", 1),
    Sketcher.Constraint("Horizontal", 3),
    Sketcher.Constraint("DistanceX", 3, 2, 3, 1, Q("0.1 mm")),
    Sketcher.Constraint("DistanceY", 0, 2, 0, 1, Q("2 mm")),
    Sketcher.Constraint("DistanceX", 1, 1, 1, 2, Q("0.1003 mm")),
    Sketcher.Constraint("DistanceX", 0, 2, -1, 1, Q("0.9 mm")),
    Sketcher.Constraint("DistanceY", 0, 2, -1, 1, Q("4.005 mm")),
])
pocket4 = body.newObject("PartDesign::Pocket", "Pocket003")
pocket4.Profile = sketch9
pocket4.Length = 10

doc.recompute()
